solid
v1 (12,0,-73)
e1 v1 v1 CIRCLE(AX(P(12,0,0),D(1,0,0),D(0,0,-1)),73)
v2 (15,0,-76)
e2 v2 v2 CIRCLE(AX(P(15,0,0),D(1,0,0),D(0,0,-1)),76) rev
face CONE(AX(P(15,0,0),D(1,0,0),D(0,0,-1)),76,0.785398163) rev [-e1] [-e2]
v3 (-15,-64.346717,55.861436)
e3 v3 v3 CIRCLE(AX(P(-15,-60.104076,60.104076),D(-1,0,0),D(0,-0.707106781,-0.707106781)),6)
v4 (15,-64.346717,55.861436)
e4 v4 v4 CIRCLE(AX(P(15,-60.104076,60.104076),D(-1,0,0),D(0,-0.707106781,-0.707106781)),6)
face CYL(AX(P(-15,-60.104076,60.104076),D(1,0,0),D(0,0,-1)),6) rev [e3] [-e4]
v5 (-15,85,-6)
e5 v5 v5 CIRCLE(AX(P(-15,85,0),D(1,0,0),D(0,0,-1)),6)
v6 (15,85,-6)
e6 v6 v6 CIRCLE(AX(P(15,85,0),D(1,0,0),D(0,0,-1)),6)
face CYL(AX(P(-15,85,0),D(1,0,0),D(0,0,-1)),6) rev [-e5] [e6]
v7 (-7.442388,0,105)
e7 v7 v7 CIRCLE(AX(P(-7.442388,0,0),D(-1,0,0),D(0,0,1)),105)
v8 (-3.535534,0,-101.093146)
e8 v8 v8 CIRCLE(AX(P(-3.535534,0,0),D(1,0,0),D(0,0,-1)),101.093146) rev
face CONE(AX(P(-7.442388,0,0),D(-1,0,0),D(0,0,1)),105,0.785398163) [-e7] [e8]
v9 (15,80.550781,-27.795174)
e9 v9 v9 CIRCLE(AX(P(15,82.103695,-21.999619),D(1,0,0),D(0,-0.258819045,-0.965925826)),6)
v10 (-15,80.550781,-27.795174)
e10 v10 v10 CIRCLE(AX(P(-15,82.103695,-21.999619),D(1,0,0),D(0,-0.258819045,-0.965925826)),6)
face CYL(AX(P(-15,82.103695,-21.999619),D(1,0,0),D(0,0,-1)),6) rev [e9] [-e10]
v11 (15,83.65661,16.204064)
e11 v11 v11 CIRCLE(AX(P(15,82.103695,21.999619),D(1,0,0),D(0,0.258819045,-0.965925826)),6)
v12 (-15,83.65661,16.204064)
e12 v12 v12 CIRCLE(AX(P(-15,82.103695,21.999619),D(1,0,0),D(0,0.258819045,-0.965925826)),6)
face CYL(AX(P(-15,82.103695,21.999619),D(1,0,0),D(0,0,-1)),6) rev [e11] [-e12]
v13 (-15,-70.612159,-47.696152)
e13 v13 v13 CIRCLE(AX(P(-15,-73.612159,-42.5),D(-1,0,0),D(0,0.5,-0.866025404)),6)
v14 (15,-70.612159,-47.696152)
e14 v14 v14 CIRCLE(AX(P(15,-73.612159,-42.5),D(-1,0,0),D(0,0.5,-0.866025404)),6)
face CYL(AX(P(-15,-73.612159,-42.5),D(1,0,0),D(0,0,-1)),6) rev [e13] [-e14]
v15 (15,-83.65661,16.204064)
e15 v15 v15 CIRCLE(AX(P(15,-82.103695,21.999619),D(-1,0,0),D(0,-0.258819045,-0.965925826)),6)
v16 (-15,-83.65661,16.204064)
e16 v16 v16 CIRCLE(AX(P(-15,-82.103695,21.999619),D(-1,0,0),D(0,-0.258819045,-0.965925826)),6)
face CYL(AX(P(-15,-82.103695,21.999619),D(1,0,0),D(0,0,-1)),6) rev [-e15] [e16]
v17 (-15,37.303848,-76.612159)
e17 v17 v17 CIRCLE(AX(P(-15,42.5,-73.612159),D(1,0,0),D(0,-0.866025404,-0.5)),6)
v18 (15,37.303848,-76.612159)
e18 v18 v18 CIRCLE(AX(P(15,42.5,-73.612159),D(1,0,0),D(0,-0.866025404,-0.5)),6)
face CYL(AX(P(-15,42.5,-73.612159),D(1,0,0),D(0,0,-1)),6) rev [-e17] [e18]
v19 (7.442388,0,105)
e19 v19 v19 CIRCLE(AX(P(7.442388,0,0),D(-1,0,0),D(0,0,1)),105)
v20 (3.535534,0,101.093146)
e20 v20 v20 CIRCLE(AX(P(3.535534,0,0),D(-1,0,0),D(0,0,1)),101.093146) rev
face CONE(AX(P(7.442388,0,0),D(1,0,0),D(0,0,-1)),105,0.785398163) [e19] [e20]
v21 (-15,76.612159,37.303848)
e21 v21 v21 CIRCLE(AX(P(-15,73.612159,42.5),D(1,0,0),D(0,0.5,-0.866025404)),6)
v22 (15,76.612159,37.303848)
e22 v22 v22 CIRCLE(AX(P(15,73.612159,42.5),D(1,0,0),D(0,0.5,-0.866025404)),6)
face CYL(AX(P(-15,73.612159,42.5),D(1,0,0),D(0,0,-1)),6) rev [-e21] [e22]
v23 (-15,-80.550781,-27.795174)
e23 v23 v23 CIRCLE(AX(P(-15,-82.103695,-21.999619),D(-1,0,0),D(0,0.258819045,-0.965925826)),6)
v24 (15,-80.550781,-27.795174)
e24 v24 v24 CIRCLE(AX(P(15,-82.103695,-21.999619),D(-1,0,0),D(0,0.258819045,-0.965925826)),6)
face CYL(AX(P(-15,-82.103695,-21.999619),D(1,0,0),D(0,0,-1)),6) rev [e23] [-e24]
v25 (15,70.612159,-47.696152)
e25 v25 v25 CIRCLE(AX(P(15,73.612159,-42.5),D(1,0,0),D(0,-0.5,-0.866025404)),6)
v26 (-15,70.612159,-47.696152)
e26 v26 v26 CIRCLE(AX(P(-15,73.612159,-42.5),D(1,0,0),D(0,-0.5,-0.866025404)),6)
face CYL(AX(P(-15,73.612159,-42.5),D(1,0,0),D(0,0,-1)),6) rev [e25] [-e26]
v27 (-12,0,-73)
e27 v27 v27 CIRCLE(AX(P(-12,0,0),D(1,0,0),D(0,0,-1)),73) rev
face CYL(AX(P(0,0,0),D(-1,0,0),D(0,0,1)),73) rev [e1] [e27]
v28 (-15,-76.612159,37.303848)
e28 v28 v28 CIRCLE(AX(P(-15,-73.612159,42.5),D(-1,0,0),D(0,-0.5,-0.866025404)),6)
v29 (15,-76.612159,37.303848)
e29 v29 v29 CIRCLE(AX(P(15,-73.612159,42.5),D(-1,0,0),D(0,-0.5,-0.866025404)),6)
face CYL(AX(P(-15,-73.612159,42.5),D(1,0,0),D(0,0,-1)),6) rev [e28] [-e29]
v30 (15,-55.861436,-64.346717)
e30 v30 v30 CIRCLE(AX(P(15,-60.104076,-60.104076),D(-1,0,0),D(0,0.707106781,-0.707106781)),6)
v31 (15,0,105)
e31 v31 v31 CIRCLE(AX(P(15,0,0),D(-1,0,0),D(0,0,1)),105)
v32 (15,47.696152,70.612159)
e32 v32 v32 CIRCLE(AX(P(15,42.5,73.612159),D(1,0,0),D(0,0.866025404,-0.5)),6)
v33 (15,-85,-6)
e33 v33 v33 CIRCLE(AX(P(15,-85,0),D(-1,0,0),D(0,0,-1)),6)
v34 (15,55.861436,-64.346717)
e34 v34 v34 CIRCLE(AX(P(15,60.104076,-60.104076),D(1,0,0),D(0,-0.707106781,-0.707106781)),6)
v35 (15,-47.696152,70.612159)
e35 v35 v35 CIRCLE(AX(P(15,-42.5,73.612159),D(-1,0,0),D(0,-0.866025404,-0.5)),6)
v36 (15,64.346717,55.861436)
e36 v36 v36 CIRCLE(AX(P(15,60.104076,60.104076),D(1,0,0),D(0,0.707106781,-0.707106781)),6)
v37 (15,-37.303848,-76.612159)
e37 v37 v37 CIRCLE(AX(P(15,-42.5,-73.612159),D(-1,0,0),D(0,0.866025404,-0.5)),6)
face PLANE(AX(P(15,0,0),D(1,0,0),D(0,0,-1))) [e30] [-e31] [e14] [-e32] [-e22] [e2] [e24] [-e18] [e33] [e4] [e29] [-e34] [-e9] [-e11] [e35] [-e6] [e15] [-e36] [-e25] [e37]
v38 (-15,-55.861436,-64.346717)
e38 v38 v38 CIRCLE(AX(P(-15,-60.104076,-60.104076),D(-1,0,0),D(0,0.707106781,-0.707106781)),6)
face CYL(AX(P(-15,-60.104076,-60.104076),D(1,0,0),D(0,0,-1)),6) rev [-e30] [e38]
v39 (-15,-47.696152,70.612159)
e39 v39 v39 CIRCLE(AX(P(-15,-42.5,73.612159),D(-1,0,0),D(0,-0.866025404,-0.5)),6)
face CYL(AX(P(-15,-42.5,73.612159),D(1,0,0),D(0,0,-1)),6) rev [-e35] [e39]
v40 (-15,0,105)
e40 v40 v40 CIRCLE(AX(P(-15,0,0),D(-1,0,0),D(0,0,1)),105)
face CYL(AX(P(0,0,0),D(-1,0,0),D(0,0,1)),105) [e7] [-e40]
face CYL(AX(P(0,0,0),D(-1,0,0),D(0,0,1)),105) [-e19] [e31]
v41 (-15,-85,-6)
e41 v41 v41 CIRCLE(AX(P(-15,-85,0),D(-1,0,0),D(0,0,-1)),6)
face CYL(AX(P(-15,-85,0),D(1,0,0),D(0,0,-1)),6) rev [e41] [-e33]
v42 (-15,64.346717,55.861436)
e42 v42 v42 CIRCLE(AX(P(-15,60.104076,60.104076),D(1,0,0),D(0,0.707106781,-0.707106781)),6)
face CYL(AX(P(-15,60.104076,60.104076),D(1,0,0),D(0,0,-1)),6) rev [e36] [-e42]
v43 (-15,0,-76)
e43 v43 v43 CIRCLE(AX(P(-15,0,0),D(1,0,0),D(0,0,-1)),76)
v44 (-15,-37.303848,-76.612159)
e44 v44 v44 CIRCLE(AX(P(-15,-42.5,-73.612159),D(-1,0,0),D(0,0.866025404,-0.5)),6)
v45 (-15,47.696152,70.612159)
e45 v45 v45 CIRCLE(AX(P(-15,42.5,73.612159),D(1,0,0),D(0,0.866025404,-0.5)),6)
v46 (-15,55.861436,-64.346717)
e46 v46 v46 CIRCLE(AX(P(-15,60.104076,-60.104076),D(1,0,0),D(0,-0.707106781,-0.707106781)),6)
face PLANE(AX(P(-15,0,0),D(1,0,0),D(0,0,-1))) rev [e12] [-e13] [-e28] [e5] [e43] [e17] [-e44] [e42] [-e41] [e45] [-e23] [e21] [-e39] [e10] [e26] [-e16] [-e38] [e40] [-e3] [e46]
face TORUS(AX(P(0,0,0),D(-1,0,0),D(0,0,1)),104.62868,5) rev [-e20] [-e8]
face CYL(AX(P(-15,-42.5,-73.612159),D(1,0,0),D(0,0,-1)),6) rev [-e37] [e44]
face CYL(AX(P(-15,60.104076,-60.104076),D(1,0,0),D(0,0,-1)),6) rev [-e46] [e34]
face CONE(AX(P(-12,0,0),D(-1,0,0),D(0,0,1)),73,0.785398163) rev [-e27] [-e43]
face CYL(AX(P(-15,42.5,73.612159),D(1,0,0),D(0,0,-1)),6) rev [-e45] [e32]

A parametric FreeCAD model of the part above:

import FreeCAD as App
import Part
import Sketcher

V = App.Vector
Q = App.Units.Quantity


def edges_at(feature, points):
    """Names of the edges that pass closest to the given points."""
    edges = feature.Shape.Edges
    near = lambda p: min(range(len(edges)), key=lambda i: edges[i].distToShape(Part.Vertex(*p))[0])
    return sorted({f"Edge{near(p) + 1}" for p in points})

doc = App.newDocument("Part")
body = doc.addObject("PartDesign::Body", "Body")

sketch1 = body.newObject("Sketcher::SketchObject", "Sketch")
sketch1.AttachmentSupport = (doc.getObject("XY_Plane"), [""])
sketch1.MapMode = "FlatFace"
sketch1.addGeometry([
    Part.LineSegment(V(15, 105, 0), V(7, 105, 0)),
    Part.LineSegment(V(7, 105, 0), V(0, 98, 0)),
    Part.LineSegment(V(0, 98, 0), V(-7, 105, 0)),
    Part.LineSegment(V(-7, 105, 0), V(-15, 105, 0)),
    Part.LineSegment(V(-15, 105, 0), V(-15, 73, 0)),
    Part.LineSegment(V(-15, 73, 0), V(15, 73, 0)),
    Part.LineSegment(V(15, 73, 0), V(15, 105, 0)),
], False)
sketch1.addConstraint([
    Sketcher.Constraint("Coincident", 0, 2, 1, 1),
    Sketcher.Constraint("Coincident", 1, 2, 2, 1),
    Sketcher.Constraint("Coincident", 2, 2, 3, 1),
    Sketcher.Constraint("Coincident", 3, 2, 4, 1),
    Sketcher.Constraint("Coincident", 4, 2, 5, 1),
    Sketcher.Constraint("Coincident", 5, 2, 6, 1),
    Sketcher.Constraint("Coincident", 6, 2, 0, 1),
    Sketcher.Constraint("Horizontal", 0),
    Sketcher.Constraint("Horizontal", 3),
    Sketcher.Constraint("Vertical", 4),
    Sketcher.Constraint("Horizontal", 5),
    Sketcher.Constraint("Vertical", 6),
    Sketcher.Constraint("Symmetric", 0, 2, 2, 2, -2),
    Sketcher.Constraint("PointOnObject", 1, 2, -2),
    Sketcher.Constraint("Perpendicular", 1, 2),
    Sketcher.Constraint("Equal", 0, 3),
    Sketcher.Constraint("DistanceX", 5, 1, 5, 2, Q("30 mm")),
    Sketcher.Constraint("DistanceY", 4, 2, 4, 1, Q("32 mm")),
    Sketcher.Constraint("DistanceY", -1, 1, 0, 2, Q("105 mm")),
    Sketcher.Constraint("DistanceX", 0, 2, 0, 1, Q("7.557612 mm")),
])
revolution = body.newObject("PartDesign::Revolution", "Revolution")
revolution.Profile = sketch1
revolution.ReferenceAxis = (sketch1, ["H_Axis"])
revolution.Angle = 360
doc.recompute()

chamfer = body.newObject("PartDesign::Chamfer", "Chamfer")
chamfer.Base = (revolution, edges_at(revolution, [(15, 0, -73), (-15, 0, -73)]))
chamfer.Size = 3
doc.recompute()

fillet = body.newObject("PartDesign::Fillet", "Fillet")
fillet.Base = (chamfer, edges_at(chamfer, [(0, 0, -97.558)]))
fillet.Radius = 5

sketch2 = body.newObject("Sketcher::SketchObject", "Sketch001")
sketch2.AttachmentSupport = (doc.getObject("YZ_Plane"), [""])
sketch2.MapMode = "FlatFace"
sketch2.AttachmentOffset = App.Placement(V(0, 0, 15), App.Rotation())
sketch2.addGeometry(Part.Circle(V(85, 0, 0), V(0, 0, 1), 6), False)
sketch2.addConstraint([
    Sketcher.Constraint("PointOnObject", 0, 3, -1),
    Sketcher.Constraint("Diameter", 0, Q("12 mm")),
    Sketcher.Constraint("DistanceX", -1, 1, 0, 3, Q("85 mm")),
])
pocket1 = body.newObject("PartDesign::Pocket", "Pocket")
pocket1.Profile = sketch2
pocket1.Type = "ThroughAll"
doc.recompute()

polarpattern = body.newObject("PartDesign::PolarPattern", "PolarPattern")
polarpattern.Originals = [pocket1]
polarpattern.Axis = (doc.getObject("X_Axis"), [""])
polarpattern.Angle = 60
polarpattern.Occurrences = 5
polarpattern.Reversed = True
body.Tip = polarpattern
doc.recompute()

polarpattern2 = body.newObject("PartDesign::PolarPattern", "PolarPattern001")
polarpattern2.Originals = [pocket1]
polarpattern2.Axis = (doc.getObject("X_Axis"), [""])
polarpattern2.Angle = 60
polarpattern2.Occurrences = 5
body.Tip = polarpattern2
doc.recompute()

mirrored = body.newObject("PartDesign::Mirrored", "Mirrored")
mirrored.Originals = [pocket1]
mirrored.MirrorPlane = (doc.getObject("XZ_Plane"), [""])
body.Tip = mirrored

sketch3 = body.newObject("Sketcher::SketchObject", "Sketch002")
sketch3.AttachmentSupport = (doc.getObject("YZ_Plane"), [""])
sketch3.MapMode = "FlatFace"
sketch3.AttachmentOffset = App.Placement(V(0, 0, 15), App.Rotation())
sketch3.addGeometry(Part.Circle(V(-82, -22, 0), V(0, 0, 1), 6), False)
sketch3.addConstraint([
    Sketcher.Constraint("Diameter", 0, Q("12 mm")),
    Sketcher.Constraint("DistanceY", 0, 3, -1, 1, Q("21.999619 mm")),
    Sketcher.Constraint("DistanceX", 0, 3, -1, 1, Q("82.103695 mm")),
])
pocket2 = body.newObject("PartDesign::Pocket", "Pocket001")
pocket2.Profile = sketch3
pocket2.Type = "ThroughAll"

sketch4 = body.newObject("Sketcher::SketchObject", "Sketch003")
sketch4.AttachmentSupport = (doc.getObject("YZ_Plane"), [""])
sketch4.MapMode = "FlatFace"
sketch4.AttachmentOffset = App.Placement(V(0, 0, 15), App.Rotation())
sketch4.addGeometry(Part.Circle(V(-74, -42, 0), V(0, 0, 1), 6), False)
sketch4.addConstraint([
    Sketcher.Constraint("Diameter", 0, Q("12 mm")),
    Sketcher.Constraint("DistanceY", 0, 3, -1, 1, Q("42.5 mm")),
    Sketcher.Constraint("DistanceX", 0, 3, -1, 1, Q("73.612159 mm")),
])
pocket3 = body.newObject("PartDesign::Pocket", "Pocket002")
pocket3.Profile = sketch4
pocket3.Type = "ThroughAll"

sketch5 = body.newObject("Sketcher::SketchObject", "Sketch004")
sketch5.AttachmentSupport = (doc.getObject("YZ_Plane"), [""])
sketch5.MapMode = "FlatFace"
sketch5.AttachmentOffset = App.Placement(V(0, 0, 15), App.Rotation())
sketch5.addGeometry(Part.Circle(V(-60, -60, 0), V(0, 0, 1), 6), False)
sketch5.addConstraint([
    Sketcher.Constraint("Diameter", 0, Q("12 mm")),
    Sketcher.Constraint("DistanceX", 0, 3, -1, 1, Q("60.104076 mm")),
    Sketcher.Constraint("DistanceY", 0, 3, -1, 1, Q("60.104076 mm")),
])
pocket4 = body.newObject("PartDesign::Pocket", "Pocket003")
pocket4.Profile = sketch5
pocket4.Type = "ThroughAll"

sketch6 = body.newObject("Sketcher::SketchObject", "Sketch005")
sketch6.AttachmentSupport = (doc.getObject("YZ_Plane"), [""])
sketch6.MapMode = "FlatFace"
sketch6.AttachmentOffset = App.Placement(V(0, 0, 15), App.Rotation())
sketch6.addGeometry(Part.Circle(V(-42, -74, 0), V(0, 0, 1), 6), False)
sketch6.addConstraint([
    Sketcher.Constraint("Diameter", 0, Q("12 mm")),
    Sketcher.Constraint("DistanceX", 0, 3, -1, 1, Q("42.5 mm")),
    Sketcher.Constraint("DistanceY", 0, 3, -1, 1, Q("73.612159 mm")),
])
pocket5 = body.newObject("PartDesign::Pocket", "Pocket004")
pocket5.Profile = sketch6
pocket5.Type = "ThroughAll"

sketch7 = body.newObject("Sketcher::SketchObject", "Sketch006")
sketch7.AttachmentSupport = (doc.getObject("YZ_Plane"), [""])
sketch7.MapMode = "FlatFace"
sketch7.AttachmentOffset = App.Placement(V(0, 0, 15), App.Rotation())
sketch7.addGeometry(Part.Circle(V(-82, 22, 0), V(0, 0, 1), 6), False)
sketch7.addConstraint([
    Sketcher.Constraint("Diameter", 0, Q("12 mm")),
    Sketcher.Constraint("DistanceY", -1, 1, 0, 3, Q("21.999619 mm")),
    Sketcher.Constraint("DistanceX", 0, 3, -1, 1, Q("82.103695 mm")),
])
pocket6 = body.newObject("PartDesign::Pocket", "Pocket005")
pocket6.Profile = sketch7
pocket6.Type = "ThroughAll"

sketch8 = body.newObject("Sketcher::SketchObject", "Sketch007")
sketch8.AttachmentSupport = (doc.getObject("YZ_Plane"), [""])
sketch8.MapMode = "FlatFace"
sketch8.AttachmentOffset = App.Placement(V(0, 0, 15), App.Rotation())
sketch8.addGeometry(Part.Circle(V(-74, 42, 0), V(0, 0, 1), 6), False)
sketch8.addConstraint([
    Sketcher.Constraint("Diameter", 0, Q("12 mm")),
    Sketcher.Constraint("DistanceY", -1, 1, 0, 3, Q("42.5 mm")),
    Sketcher.Constraint("DistanceX", 0, 3, -1, 1, Q("73.612159 mm")),
])
pocket7 = body.newObject("PartDesign::Pocket", "Pocket006")
pocket7.Profile = sketch8
pocket7.Type = "ThroughAll"

sketch9 = body.newObject("Sketcher::SketchObject", "Sketch008")
sketch9.AttachmentSupport = (doc.getObject("YZ_Plane"), [""])
sketch9.MapMode = "FlatFace"
sketch9.AttachmentOffset = App.Placement(V(0, 0, 15), App.Rotation())
sketch9.addGeometry(Part.Circle(V(-60, 60, 0), V(0, 0, 1), 6), False)
sketch9.addConstraint([
    Sketcher.Constraint("Diameter", 0, Q("12 mm")),
    Sketcher.Constraint("DistanceX", 0, 3, -1, 1, Q("60.104076 mm")),
    Sketcher.Constraint("DistanceY", -1, 1, 0, 3, Q("60.104076 mm")),
])
pocket8 = body.newObject("PartDesign::Pocket", "Pocket007")
pocket8.Profile = sketch9
pocket8.Type = "ThroughAll"

sketch10 = body.newObject("Sketcher::SketchObject", "Sketch009")
sketch10.AttachmentSupport = (doc.getObject("YZ_Plane"), [""])
sketch10.MapMode = "FlatFace"
sketch10.AttachmentOffset = App.Placement(V(0, 0, 15), App.Rotation())
sketch10.addGeometry(Part.Circle(V(-42, 74, 0), V(0, 0, 1), 6), False)
sketch10.addConstraint([
    Sketcher.Constraint("Diameter", 0, Q("12 mm")),
    Sketcher.Constraint("DistanceX", 0, 3, -1, 1, Q("42.5 mm")),
    Sketcher.Constraint("DistanceY", -1, 1, 0, 3, Q("73.612159 mm")),
])
pocket9 = body.newObject("PartDesign::Pocket", "Pocket008")
pocket9.Profile = sketch10
pocket9.Type = "ThroughAll"

doc.recompute()
